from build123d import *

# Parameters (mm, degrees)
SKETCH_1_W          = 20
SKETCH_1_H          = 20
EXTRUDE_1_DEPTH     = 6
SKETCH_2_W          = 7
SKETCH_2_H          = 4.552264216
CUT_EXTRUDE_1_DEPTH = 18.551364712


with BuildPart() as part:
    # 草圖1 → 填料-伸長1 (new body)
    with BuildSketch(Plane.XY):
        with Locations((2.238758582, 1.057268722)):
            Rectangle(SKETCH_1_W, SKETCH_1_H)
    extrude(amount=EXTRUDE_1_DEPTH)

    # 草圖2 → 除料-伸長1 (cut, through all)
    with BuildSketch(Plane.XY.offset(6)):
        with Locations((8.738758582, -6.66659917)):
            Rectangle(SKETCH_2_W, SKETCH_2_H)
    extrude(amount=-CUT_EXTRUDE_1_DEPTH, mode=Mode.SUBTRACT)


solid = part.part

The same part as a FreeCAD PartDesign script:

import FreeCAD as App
import Part
import Sketcher

doc = App.newDocument("Part")
body = doc.addObject("PartDesign::Body", "Body")

# Sketch on XY plane
sketch1 = doc.addObject("Sketcher::SketchObject", "Sketch")
body.addObject(sketch1)
sketch1.AttachmentSupport = (doc.XY_Plane, [""])
sketch1.MapMode = "FlatFace"
sketch1.addGeometry([
    Part.LineSegment(App.Vector(-8, 11, 0), App.Vector(-8, -9, 0)),
    Part.LineSegment(App.Vector(-8, -9, 0), App.Vector(12, -9, 0)),
    Part.LineSegment(App.Vector(12, -9, 0), App.Vector(12, 11, 0)),
    Part.LineSegment(App.Vector(12, 11, 0), App.Vector(-8, 11, 0)),
], False)
sketch1.addConstraint([
    Sketcher.Constraint("Coincident", 0, 2, 1, 1),
    Sketcher.Constraint("Coincident", 1, 2, 2, 1),
    Sketcher.Constraint("Coincident", 2, 2, 3, 1),
    Sketcher.Constraint("Coincident", 3, 2, 0, 1),
    Sketcher.Constraint("Vertical", 0),
    Sketcher.Constraint("Horizontal", 1),
    Sketcher.Constraint("Vertical", 2),
    Sketcher.Constraint("Horizontal", 3),
    Sketcher.Constraint("Equal", 3, 0),
    Sketcher.Constraint("DistanceX", 1, 1, 1, 2, 20.0),
    Sketcher.Constraint("DistanceX", 0, 2, -1, 1, 7.761241),
    Sketcher.Constraint("DistanceY", 0, 2, -1, 1, 8.942731),
])
pad1 = doc.addObject("PartDesign::Pad", "Pad")
body.addObject(pad1)
pad1.Profile = sketch1
pad1.Length = 6

# Sketch on XY plane
sketch2 = doc.addObject("Sketcher::SketchObject", "Sketch001")
body.addObject(sketch2)
sketch2.AttachmentSupport = (doc.XY_Plane, [""])
sketch2.MapMode = "FlatFace"
sketch2.AttachmentOffset = App.Placement(App.Vector(0, 0, 6), App.Rotation())
sketch2.addGeometry([
    Part.LineSegment(App.Vector(5.2, -4.4, 0), App.Vector(5.2, -8.9, 0)),
    Part.LineSegment(App.Vector(5.2, -8.9, 0), App.Vector(12.2, -8.9, 0)),
    Part.LineSegment(App.Vector(12.2, -8.9, 0), App.Vector(12.2, -4.4, 0)),
    Part.LineSegment(App.Vector(12.2, -4.4, 0), App.Vector(5.2, -4.4, 0)),
], False)
sketch2.addConstraint([
    Sketcher.Constraint("Coincident", 0, 2, 1, 1),
    Sketcher.Constraint("Coincident", 1, 2, 2, 1),
    Sketcher.Constraint("Coincident", 2, 2, 3, 1),
    Sketcher.Constraint("Coincident", 3, 2, 0, 1),
    Sketcher.Constraint("Vertical", 0),
    Sketcher.Constraint("Horizontal", 1),
    Sketcher.Constraint("Vertical", 2),
    Sketcher.Constraint("Horizontal", 3),
    Sketcher.Constraint("DistanceX", 1, 1, 1, 2, 7.0),
    Sketcher.Constraint("DistanceY", 0, 2, 0, 1, 4.552264),
    Sketcher.Constraint("DistanceX", -1, 1, 0, 2, 5.238759),
    Sketcher.Constraint("DistanceY", 0, 2, -1, 1, 8.942731),
])
pocket1 = doc.addObject("PartDesign::Pocket", "Pocket")
body.addObject(pocket1)
pocket1.Profile = sketch2
pocket1.Type = "ThroughAll"

doc.recompute()
